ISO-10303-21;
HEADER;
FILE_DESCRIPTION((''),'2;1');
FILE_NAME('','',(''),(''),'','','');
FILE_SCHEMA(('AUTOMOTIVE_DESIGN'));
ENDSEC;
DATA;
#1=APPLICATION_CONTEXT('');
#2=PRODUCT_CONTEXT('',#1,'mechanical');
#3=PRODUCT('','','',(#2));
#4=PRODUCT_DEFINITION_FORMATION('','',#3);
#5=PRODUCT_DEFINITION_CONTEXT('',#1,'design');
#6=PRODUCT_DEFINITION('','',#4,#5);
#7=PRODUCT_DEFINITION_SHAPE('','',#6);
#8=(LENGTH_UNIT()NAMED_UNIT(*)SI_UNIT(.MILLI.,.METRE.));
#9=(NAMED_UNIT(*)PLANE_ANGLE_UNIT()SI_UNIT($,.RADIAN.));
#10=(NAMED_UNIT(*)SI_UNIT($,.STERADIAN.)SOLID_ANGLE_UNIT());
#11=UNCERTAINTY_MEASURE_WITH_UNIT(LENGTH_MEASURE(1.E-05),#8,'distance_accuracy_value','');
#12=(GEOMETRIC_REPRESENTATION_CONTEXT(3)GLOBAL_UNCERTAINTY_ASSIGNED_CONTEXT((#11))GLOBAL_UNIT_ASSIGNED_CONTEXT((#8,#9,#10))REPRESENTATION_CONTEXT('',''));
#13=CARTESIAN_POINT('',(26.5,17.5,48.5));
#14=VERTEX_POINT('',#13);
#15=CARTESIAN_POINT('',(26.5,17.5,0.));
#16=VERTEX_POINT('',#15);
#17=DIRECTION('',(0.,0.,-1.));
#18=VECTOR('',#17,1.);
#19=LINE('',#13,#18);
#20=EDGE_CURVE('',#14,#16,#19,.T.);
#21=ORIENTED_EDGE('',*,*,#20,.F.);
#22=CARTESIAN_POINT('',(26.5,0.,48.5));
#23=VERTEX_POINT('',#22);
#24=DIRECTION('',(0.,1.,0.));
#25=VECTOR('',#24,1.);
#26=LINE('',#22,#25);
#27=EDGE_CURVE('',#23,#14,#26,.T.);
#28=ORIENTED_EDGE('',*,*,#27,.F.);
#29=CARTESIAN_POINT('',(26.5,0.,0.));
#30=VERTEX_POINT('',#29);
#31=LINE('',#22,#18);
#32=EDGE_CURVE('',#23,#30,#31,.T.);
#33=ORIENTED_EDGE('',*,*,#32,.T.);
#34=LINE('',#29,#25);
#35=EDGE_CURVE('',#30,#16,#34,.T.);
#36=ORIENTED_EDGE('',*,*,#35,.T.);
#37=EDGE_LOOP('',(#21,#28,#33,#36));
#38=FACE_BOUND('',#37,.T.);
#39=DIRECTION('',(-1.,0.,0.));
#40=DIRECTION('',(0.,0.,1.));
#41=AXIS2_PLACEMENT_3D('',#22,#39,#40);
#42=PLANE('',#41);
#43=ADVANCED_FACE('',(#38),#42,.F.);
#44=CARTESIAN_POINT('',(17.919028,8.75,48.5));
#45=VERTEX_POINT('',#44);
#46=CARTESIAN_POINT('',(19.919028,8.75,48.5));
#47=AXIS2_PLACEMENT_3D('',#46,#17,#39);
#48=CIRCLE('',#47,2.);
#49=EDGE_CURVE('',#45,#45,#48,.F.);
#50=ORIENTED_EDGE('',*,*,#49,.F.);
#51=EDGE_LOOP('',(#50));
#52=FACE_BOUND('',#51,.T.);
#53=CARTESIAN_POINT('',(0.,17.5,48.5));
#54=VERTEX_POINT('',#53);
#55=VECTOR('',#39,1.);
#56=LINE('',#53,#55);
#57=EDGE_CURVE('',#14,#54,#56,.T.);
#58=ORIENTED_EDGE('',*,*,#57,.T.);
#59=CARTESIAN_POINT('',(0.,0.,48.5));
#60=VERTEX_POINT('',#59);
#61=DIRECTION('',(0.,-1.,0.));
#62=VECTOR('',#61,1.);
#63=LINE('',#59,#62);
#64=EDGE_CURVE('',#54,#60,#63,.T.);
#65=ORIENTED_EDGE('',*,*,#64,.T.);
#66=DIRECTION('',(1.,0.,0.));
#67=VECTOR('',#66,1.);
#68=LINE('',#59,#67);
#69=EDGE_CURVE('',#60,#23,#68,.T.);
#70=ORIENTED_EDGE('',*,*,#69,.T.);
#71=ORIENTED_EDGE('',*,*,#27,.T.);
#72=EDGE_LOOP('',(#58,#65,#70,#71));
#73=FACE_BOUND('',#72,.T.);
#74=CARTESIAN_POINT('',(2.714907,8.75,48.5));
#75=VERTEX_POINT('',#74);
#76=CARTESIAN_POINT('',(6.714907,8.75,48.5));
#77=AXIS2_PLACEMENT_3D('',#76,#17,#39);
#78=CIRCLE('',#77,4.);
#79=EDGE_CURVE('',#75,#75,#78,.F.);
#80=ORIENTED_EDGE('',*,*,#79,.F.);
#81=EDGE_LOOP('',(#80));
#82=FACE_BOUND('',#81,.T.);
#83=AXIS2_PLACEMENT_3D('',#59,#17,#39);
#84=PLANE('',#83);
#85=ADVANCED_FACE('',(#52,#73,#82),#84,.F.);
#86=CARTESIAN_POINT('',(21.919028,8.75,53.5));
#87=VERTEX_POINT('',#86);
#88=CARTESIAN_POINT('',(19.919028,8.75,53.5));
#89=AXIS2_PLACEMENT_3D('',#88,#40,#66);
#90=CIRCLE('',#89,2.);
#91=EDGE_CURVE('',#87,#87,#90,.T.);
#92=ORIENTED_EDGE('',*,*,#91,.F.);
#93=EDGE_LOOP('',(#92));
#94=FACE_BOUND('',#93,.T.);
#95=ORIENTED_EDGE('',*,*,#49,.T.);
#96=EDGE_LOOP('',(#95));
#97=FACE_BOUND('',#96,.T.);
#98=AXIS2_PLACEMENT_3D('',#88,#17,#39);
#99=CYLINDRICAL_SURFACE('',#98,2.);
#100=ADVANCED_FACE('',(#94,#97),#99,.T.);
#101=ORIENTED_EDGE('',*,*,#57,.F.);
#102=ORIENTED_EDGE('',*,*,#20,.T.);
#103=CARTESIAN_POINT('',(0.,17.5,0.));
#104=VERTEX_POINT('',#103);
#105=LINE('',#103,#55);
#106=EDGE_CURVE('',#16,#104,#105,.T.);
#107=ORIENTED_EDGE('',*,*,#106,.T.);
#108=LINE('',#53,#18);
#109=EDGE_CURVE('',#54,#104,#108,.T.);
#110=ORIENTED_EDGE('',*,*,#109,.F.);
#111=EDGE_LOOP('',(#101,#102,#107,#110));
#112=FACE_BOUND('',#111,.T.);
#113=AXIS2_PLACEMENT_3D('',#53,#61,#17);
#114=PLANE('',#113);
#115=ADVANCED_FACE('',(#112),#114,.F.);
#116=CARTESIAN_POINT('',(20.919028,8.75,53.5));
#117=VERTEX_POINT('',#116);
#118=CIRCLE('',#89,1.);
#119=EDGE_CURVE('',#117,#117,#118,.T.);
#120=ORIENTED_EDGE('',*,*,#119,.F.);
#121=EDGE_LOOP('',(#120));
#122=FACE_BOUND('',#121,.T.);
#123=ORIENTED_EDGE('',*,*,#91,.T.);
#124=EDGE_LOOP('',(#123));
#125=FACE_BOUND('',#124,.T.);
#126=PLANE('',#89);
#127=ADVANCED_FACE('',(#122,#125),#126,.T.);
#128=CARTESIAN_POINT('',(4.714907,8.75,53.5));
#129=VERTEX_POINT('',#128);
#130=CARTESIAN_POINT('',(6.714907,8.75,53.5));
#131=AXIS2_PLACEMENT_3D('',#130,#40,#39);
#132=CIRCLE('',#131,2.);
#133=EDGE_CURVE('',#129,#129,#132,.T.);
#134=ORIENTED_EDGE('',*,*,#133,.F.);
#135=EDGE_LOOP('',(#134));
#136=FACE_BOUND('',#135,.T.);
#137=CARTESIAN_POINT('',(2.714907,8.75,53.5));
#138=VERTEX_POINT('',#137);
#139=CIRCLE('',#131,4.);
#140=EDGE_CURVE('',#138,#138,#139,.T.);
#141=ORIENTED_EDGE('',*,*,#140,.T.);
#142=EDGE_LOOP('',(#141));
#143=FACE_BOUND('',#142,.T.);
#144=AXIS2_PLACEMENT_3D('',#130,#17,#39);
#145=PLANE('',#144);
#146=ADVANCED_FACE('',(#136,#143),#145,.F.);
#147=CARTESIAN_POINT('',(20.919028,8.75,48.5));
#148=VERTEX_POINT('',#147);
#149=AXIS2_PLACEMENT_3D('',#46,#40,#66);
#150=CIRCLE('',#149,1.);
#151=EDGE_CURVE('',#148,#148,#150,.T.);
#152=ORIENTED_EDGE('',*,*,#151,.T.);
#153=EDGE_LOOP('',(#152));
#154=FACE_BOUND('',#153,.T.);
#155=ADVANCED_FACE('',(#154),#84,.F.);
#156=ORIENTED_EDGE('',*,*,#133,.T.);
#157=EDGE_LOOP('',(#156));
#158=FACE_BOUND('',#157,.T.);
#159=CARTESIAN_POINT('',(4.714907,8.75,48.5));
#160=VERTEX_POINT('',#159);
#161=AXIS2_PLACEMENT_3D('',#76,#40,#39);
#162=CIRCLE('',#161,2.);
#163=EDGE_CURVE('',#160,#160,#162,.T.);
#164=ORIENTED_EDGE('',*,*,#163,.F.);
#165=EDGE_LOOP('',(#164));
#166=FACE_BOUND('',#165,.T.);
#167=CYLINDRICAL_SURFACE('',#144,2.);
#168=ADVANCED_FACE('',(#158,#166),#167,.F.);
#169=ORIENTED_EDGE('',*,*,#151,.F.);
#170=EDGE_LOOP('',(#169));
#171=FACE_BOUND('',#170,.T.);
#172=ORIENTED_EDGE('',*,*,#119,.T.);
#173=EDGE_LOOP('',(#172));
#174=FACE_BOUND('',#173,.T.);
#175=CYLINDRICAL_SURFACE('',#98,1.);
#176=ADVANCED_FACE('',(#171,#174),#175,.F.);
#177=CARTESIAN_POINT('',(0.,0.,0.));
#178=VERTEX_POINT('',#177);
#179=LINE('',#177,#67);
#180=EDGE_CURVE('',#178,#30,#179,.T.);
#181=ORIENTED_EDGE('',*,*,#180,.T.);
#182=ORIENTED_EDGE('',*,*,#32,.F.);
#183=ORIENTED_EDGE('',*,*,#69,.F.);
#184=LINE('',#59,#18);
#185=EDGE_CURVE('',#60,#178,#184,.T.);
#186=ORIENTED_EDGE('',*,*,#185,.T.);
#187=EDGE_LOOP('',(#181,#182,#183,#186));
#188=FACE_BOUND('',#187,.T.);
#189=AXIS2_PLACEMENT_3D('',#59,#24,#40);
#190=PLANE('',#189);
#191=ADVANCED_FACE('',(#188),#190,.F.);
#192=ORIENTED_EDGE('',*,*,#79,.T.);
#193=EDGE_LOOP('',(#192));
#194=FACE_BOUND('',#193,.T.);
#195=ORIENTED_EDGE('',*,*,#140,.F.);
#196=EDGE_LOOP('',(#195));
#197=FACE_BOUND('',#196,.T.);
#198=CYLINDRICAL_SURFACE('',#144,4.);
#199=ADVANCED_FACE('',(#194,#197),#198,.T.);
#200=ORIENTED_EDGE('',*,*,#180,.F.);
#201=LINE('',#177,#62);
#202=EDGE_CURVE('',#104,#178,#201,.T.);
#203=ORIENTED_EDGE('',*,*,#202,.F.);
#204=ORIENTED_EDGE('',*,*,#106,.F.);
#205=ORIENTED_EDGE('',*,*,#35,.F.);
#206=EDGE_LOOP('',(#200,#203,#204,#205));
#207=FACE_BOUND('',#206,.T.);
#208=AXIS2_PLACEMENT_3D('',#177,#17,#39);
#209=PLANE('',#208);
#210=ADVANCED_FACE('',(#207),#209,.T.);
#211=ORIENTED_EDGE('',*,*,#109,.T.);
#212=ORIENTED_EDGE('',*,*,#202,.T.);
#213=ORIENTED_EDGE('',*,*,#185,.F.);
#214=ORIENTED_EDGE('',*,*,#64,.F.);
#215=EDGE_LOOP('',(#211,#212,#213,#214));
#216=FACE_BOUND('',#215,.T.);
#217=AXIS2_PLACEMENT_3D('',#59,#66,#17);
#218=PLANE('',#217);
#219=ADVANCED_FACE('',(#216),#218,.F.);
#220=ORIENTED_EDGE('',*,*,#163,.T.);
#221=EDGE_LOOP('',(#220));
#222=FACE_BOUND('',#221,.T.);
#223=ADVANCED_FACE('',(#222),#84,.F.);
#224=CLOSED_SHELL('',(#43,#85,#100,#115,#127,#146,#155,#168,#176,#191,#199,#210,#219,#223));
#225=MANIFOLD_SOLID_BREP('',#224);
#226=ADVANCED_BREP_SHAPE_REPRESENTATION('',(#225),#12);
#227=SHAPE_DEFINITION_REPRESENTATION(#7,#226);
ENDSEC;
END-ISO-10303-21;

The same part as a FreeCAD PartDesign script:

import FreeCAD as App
import Part
import Sketcher
from FreeCAD import Vector
Q = App.Units.Quantity

doc = App.newDocument("Part")
body = doc.addObject("PartDesign::Body", "Body")

sketch1 = body.newObject("Sketcher::SketchObject", "Sketch")
sketch1.AttachmentSupport = (doc.getObject("XY_Plane"), [""])
sketch1.MapMode = "FlatFace"
sketch1.addGeometry(Part.LineSegment(Vector(0, 18, 0), Vector(0, 0, 0)), False)
sketch1.addGeometry(Part.LineSegment(Vector(0, 0, 0), Vector(26, 0, 0)), False)
sketch1.addGeometry(Part.LineSegment(Vector(26, 0, 0), Vector(26, 18, 0)), False)
sketch1.addGeometry(Part.LineSegment(Vector(26, 18, 0), Vector(0, 18, 0)), False)
sketch1.addConstraint(Sketcher.Constraint("Coincident", 0, 2, 1, 1))
sketch1.addConstraint(Sketcher.Constraint("Coincident", 1, 2, 2, 1))
sketch1.addConstraint(Sketcher.Constraint("Coincident", 2, 2, 3, 1))
sketch1.addConstraint(Sketcher.Constraint("Coincident", 3, 2, 0, 1))
sketch1.addConstraint(Sketcher.Constraint("Vertical", 0))
sketch1.addConstraint(Sketcher.Constraint("Horizontal", 1))
sketch1.addConstraint(Sketcher.Constraint("Vertical", 2))
sketch1.addConstraint(Sketcher.Constraint("Horizontal", 3))
sketch1.addConstraint(Sketcher.Constraint("Coincident", 0, 2, -1, 1))
sketch1.addConstraint(Sketcher.Constraint("DistanceX", 1, 1, 1, 2, Q("26.5 mm")))
sketch1.addConstraint(Sketcher.Constraint("DistanceY", 0, 2, 0, 1, Q("17.5 mm")))
pad1 = body.newObject("PartDesign::Pad", "Pad")
pad1.Profile = sketch1
pad1.Length = 48.5

sketch2 = body.newObject("Sketcher::SketchObject", "Sketch001")
sketch2.AttachmentSupport = (doc.getObject("XY_Plane"), [""])
sketch2.MapMode = "FlatFace"
sketch2.AttachmentOffset = App.Placement(Vector(0, 0, 48.5), App.Rotation())
sketch2.addGeometry(Part.Circle(Vector(19.9, 8.8, 0), Vector(0, 0, 1), 2), False)
sketch2.addGeometry(Part.Circle(Vector(19.9, 8.8, 0), Vector(0, 0, 1), 1), False)
sketch2.addGeometry(Part.Circle(Vector(6.7, 8.8, 0), Vector(0, 0, 1), 4), False)
sketch2.addGeometry(Part.Circle(Vector(6.7, 8.8, 0), Vector(0, 0, 1), 2), False)
sketch2.addConstraint(Sketcher.Constraint("Coincident", 1, 3, 0, 3))
sketch2.addConstraint(Sketcher.Constraint("Coincident", 3, 3, 2, 3))
sketch2.addConstraint(Sketcher.Constraint("Equal", 0, 3))
sketch2.addConstraint(Sketcher.Constraint("Horizontal", 1, 3, 2, 3))
sketch2.addConstraint(Sketcher.Constraint("Diameter", 0, Q("4 mm")))
sketch2.addConstraint(Sketcher.Constraint("Diameter", 1, Q("2 mm")))
sketch2.addConstraint(Sketcher.Constraint("Diameter", 2, Q("8 mm")))
sketch2.addConstraint(Sketcher.Constraint("DistanceY", -1, 1, 0, 3, Q("8.75 mm")))
sketch2.addConstraint(Sketcher.Constraint("DistanceX", -1, 1, 0, 3, Q("19.919028 mm")))
sketch2.addConstraint(Sketcher.Constraint("DistanceX", 2, 3, 0, 3, Q("13.204121 mm")))
pad2 = body.newObject("PartDesign::Pad", "Pad001")
pad2.Profile = sketch2
pad2.Length = 5

doc.recompute()
